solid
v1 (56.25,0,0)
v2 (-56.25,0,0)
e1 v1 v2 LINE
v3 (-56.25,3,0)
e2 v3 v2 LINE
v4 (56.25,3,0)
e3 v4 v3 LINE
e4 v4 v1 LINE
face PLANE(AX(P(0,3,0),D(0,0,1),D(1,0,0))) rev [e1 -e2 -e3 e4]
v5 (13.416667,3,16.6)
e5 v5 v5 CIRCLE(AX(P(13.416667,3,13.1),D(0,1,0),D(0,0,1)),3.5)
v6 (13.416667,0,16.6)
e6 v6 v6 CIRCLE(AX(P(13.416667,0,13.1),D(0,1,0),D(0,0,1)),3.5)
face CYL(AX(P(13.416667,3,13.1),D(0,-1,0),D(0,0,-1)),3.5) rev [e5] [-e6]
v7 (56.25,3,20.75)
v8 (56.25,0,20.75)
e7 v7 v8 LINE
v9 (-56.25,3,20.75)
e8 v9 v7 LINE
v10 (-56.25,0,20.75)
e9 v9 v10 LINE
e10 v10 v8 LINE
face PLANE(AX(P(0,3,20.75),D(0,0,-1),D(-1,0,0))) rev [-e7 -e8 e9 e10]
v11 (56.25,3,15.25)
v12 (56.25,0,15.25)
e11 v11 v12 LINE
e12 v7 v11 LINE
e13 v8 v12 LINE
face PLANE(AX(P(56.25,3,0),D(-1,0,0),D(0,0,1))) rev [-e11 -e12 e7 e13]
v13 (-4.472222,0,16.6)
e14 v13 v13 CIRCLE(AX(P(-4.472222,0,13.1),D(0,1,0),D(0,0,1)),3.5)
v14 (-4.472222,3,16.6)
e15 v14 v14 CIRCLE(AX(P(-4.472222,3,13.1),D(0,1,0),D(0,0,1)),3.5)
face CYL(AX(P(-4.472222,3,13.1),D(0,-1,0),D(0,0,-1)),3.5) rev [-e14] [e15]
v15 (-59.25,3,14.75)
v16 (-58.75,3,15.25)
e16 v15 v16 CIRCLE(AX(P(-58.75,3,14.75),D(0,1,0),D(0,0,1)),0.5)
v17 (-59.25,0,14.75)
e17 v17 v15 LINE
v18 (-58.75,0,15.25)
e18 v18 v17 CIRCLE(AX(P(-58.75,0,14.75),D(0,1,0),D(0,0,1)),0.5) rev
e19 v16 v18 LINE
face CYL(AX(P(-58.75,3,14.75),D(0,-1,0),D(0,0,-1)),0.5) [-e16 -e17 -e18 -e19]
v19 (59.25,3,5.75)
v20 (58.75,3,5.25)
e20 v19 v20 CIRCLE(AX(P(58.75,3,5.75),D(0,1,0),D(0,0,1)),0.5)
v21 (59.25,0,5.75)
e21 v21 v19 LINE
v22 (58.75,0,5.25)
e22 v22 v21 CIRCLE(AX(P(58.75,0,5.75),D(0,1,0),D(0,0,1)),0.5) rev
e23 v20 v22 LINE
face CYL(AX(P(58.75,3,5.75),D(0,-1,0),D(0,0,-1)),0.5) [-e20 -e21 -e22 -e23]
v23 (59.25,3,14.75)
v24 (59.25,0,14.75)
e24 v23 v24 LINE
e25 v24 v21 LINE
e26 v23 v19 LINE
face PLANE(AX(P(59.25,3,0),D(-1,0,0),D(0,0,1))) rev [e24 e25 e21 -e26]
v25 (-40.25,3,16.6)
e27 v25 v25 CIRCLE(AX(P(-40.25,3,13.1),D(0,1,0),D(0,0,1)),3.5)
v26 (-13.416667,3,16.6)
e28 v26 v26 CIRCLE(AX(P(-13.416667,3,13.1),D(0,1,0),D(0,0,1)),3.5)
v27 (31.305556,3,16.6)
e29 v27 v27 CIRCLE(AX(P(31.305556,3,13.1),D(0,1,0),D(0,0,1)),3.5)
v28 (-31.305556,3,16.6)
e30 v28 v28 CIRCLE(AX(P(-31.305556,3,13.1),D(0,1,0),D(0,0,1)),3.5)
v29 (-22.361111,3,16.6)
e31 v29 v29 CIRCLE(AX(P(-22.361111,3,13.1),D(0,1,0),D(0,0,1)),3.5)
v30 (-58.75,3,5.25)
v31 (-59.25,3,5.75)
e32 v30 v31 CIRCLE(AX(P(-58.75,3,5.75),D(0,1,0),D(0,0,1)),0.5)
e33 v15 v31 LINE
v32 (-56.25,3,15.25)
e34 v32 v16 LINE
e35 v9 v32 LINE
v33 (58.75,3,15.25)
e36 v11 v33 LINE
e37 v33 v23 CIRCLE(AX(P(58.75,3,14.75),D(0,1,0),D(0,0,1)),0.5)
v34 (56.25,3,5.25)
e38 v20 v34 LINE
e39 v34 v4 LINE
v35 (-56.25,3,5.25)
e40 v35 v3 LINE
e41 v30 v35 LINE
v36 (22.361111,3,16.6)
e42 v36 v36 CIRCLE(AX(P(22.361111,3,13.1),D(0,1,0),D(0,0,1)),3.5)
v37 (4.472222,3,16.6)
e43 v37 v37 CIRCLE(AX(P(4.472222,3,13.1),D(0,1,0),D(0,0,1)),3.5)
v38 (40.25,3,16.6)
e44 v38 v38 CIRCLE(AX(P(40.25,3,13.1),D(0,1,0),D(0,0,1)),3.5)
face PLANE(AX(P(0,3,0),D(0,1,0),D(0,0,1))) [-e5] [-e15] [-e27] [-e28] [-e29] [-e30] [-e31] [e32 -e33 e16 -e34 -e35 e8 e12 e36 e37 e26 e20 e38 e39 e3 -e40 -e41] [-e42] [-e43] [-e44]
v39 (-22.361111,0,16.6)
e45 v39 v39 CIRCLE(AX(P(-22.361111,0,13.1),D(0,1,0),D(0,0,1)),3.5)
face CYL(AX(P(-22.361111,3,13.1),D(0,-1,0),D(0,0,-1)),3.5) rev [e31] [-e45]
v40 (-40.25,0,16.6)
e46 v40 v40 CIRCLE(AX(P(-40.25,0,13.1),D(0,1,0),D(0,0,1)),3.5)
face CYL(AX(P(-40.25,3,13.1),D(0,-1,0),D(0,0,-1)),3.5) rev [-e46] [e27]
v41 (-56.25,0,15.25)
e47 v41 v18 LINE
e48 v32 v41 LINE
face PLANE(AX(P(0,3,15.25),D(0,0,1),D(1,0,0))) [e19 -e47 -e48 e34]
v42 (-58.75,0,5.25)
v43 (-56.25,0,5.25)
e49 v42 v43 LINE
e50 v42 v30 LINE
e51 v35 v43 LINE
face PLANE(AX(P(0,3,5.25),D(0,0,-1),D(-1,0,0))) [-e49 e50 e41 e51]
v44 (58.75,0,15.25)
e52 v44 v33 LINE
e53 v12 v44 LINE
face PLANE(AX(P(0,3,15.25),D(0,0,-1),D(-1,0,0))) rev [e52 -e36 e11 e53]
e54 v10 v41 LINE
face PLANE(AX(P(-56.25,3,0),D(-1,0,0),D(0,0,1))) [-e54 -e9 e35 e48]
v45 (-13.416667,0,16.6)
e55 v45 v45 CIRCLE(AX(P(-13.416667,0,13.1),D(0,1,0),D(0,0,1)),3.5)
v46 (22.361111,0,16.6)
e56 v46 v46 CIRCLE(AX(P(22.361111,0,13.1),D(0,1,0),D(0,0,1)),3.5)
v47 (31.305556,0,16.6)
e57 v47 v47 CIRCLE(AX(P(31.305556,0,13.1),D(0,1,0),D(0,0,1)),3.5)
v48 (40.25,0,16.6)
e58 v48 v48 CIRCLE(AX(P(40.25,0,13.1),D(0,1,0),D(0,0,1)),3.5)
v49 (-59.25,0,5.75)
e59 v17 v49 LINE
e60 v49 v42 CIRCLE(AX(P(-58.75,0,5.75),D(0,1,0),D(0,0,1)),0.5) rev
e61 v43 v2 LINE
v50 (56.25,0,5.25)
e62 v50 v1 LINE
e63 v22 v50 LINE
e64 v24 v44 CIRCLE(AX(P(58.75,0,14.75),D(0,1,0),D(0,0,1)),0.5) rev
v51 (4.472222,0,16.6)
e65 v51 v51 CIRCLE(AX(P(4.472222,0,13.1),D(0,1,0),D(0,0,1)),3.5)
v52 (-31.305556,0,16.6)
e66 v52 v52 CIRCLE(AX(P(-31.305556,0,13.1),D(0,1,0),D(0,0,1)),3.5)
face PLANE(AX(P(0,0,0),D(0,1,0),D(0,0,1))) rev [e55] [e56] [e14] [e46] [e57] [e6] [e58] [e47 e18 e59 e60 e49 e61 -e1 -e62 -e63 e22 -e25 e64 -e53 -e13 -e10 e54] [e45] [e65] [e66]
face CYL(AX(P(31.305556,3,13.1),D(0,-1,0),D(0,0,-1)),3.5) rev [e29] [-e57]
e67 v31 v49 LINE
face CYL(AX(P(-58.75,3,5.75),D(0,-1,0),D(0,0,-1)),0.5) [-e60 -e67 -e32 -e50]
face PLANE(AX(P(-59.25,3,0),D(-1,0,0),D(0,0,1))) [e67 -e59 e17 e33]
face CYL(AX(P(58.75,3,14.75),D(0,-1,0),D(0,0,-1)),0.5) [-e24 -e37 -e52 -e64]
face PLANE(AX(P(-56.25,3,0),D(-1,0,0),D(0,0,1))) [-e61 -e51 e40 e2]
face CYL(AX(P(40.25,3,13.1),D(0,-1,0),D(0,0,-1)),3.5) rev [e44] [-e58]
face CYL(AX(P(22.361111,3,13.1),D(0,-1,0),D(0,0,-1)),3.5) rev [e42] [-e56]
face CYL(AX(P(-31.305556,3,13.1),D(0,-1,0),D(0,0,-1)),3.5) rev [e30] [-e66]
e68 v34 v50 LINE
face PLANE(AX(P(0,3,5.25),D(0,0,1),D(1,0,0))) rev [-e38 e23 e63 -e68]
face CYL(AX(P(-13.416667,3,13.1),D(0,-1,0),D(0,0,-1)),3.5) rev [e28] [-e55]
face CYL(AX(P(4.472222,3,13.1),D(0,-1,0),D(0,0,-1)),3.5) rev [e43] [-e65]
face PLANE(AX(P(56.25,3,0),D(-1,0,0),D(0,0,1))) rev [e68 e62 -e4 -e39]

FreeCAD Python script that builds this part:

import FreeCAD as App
import Part
import Sketcher
Q = App.Units.Quantity


def edges_at(feature, points):
    """Names of the edges that pass closest to the given points."""
    edges = feature.Shape.Edges
    near = lambda p: min(range(len(edges)), key=lambda i: edges[i].distToShape(Part.Vertex(*p))[0])
    return sorted({f"Edge{near(p) + 1}" for p in points})


def add_polygon(sketch, points):
    """Adds a closed chain of lines whose ends are joined by coincident constraints."""
    first, n = sketch.GeometryCount, len(points)
    for a, b in zip(points, points[1:] + points[:1]):
        sketch.addGeometry(Part.LineSegment(App.Vector(*a, 0), App.Vector(*b, 0)), False)
    for i in range(n):
        sketch.addConstraint(Sketcher.Constraint("Coincident", first + i, 2, first + (i + 1) % n, 1))

doc = App.newDocument("Part")
body = doc.addObject("PartDesign::Body", "Body")

sketch1 = doc.addObject("Sketcher::SketchObject", "Sketch")
body.addObject(sketch1)
sketch1.AttachmentSupport = (doc.XZ_Plane, [""])
sketch1.MapMode = "FlatFace"
add_polygon(sketch1, [(-56.2, 20.8), (56.2, 20.8), (56.2, 15.2), (59.2, 15.2), (59.2, 5.2), (56.2, 5.2), (56.2, 0), (-56.2, 0), (-56.2, 5.2), (-59.2, 5.2), (-59.2, 15.2), (-56.2, 15.2)])
sketch1.addGeometry(Part.Circle(App.Vector(-40.2, 13.1, 0), App.Vector(0, 0, 1), 3.5), False)
sketch1.addGeometry(Part.Circle(App.Vector(-31.3, 13.1, 0), App.Vector(0, 0, 1), 3.5), False)
sketch1.addGeometry(Part.Circle(App.Vector(-22.4, 13.1, 0), App.Vector(0, 0, 1), 3.5), False)
sketch1.addGeometry(Part.Circle(App.Vector(-13.4, 13.1, 0), App.Vector(0, 0, 1), 3.5), False)
sketch1.addGeometry(Part.Circle(App.Vector(-4.5, 13.1, 0), App.Vector(0, 0, 1), 3.5), False)
sketch1.addGeometry(Part.Circle(App.Vector(4.5, 13.1, 0), App.Vector(0, 0, 1), 3.5), False)
sketch1.addGeometry(Part.Circle(App.Vector(13.4, 13.1, 0), App.Vector(0, 0, 1), 3.5), False)
sketch1.addGeometry(Part.Circle(App.Vector(22.4, 13.1, 0), App.Vector(0, 0, 1), 3.5), False)
sketch1.addGeometry(Part.Circle(App.Vector(31.3, 13.1, 0), App.Vector(0, 0, 1), 3.5), False)
sketch1.addGeometry(Part.Circle(App.Vector(40.2, 13.1, 0), App.Vector(0, 0, 1), 3.5), False)
sketch1.addConstraint(Sketcher.Constraint("Horizontal", 0))
sketch1.addConstraint(Sketcher.Constraint("Vertical", 1))
sketch1.addConstraint(Sketcher.Constraint("Horizontal", 2))
sketch1.addConstraint(Sketcher.Constraint("Vertical", 3))
sketch1.addConstraint(Sketcher.Constraint("Horizontal", 4))
sketch1.addConstraint(Sketcher.Constraint("Vertical", 5))
sketch1.addConstraint(Sketcher.Constraint("Horizontal", 6))
sketch1.addConstraint(Sketcher.Constraint("Vertical", 7))
sketch1.addConstraint(Sketcher.Constraint("Horizontal", 8))
sketch1.addConstraint(Sketcher.Constraint("Vertical", 9))
sketch1.addConstraint(Sketcher.Constraint("Horizontal", 10))
sketch1.addConstraint(Sketcher.Constraint("Vertical", 11))
sketch1.addConstraint(Sketcher.Constraint("Equal", 12, 13))
sketch1.addConstraint(Sketcher.Constraint("Equal", 13, 14))
sketch1.addConstraint(Sketcher.Constraint("Equal", 14, 15))
sketch1.addConstraint(Sketcher.Constraint("Equal", 15, 16))
sketch1.addConstraint(Sketcher.Constraint("Equal", 16, 17))
sketch1.addConstraint(Sketcher.Constraint("Equal", 17, 18))
sketch1.addConstraint(Sketcher.Constraint("Equal", 18, 19))
sketch1.addConstraint(Sketcher.Constraint("Equal", 19, 20))
sketch1.addConstraint(Sketcher.Constraint("Equal", 20, 21))
sketch1.addConstraint(Sketcher.Constraint("Symmetric", 5, 2, 6, 2, -1, 1))
sketch1.addConstraint(Sketcher.Constraint("Symmetric", 16, 3, 17, 3, -2))
sketch1.addConstraint(Sketcher.Constraint("Symmetric", 15, 3, 18, 3, -2))
sketch1.addConstraint(Sketcher.Constraint("Symmetric", 14, 3, 19, 3, -2))
sketch1.addConstraint(Sketcher.Constraint("Symmetric", 13, 3, 20, 3, -2))
sketch1.addConstraint(Sketcher.Constraint("Symmetric", 12, 3, 21, 3, -2))
sketch1.addConstraint(Sketcher.Constraint("Symmetric", 3, 2, 8, 2, -2))
sketch1.addConstraint(Sketcher.Constraint("Symmetric", 1, 2, 10, 2, -2))
sketch1.addConstraint(Sketcher.Constraint("Horizontal", 12, 3, 13, 3))
sketch1.addConstraint(Sketcher.Constraint("Horizontal", 13, 3, 14, 3))
sketch1.addConstraint(Sketcher.Constraint("Horizontal", 14, 3, 15, 3))
sketch1.addConstraint(Sketcher.Constraint("Horizontal", 15, 3, 16, 3))
sketch1.addConstraint(Sketcher.Constraint("Vertical", 1, 2, 4, 2))
sketch1.addConstraint(Sketcher.Constraint("Diameter", 12, Q("7 mm")))
sketch1.addConstraint(Sketcher.Constraint("DistanceX", 2, 1, 2, 2, Q("3 mm")))
sketch1.addConstraint(Sketcher.Constraint("DistanceY", 3, 2, 3, 1, Q("10 mm")))
sketch1.addConstraint(Sketcher.Constraint("DistanceX", 0, 1, 0, 2, Q("112.5 mm")))
sketch1.addConstraint(Sketcher.Constraint("DistanceY", 1, 2, 1, 1, Q("5.5 mm")))
sketch1.addConstraint(Sketcher.Constraint("DistanceX", 21, 3, 0, 2, Q("16 mm")))
sketch1.addConstraint(Sketcher.Constraint("DistanceY", 5, 2, 5, 1, Q("5.25 mm")))
sketch1.addConstraint(Sketcher.Constraint("DistanceY", -1, 1, 12, 3, Q("13.1 mm")))
sketch1.addConstraint(Sketcher.Constraint("DistanceX", 14, 3, -1, 1, Q("22.361111 mm")))
sketch1.addConstraint(Sketcher.Constraint("DistanceX", 13, 3, 15, 3, Q("17.888889 mm")))
sketch1.addConstraint(Sketcher.Constraint("DistanceX", 14, 3, 16, 3, Q("17.888889 mm")))
sketch1.addConstraint(Sketcher.Constraint("DistanceX", 15, 3, 17, 3, Q("17.888889 mm")))
pad1 = doc.addObject("PartDesign::Pad", "Pad")
body.addObject(pad1)
pad1.Profile = sketch1
pad1.Length = 3
pad1.Reversed = True
doc.recompute()

fillet = doc.addObject("PartDesign::Fillet", "Fillet")
body.addObject(fillet)
fillet.Base = (pad1, edges_at(pad1, [
    (-59.25, 1.5, 15.25),
    (-59.25, 1.5, 5.25),
    (59.25, 1.5, 5.25),
    (59.25, 1.5, 15.25),
]))
fillet.Radius = 0.5

doc.recompute()
